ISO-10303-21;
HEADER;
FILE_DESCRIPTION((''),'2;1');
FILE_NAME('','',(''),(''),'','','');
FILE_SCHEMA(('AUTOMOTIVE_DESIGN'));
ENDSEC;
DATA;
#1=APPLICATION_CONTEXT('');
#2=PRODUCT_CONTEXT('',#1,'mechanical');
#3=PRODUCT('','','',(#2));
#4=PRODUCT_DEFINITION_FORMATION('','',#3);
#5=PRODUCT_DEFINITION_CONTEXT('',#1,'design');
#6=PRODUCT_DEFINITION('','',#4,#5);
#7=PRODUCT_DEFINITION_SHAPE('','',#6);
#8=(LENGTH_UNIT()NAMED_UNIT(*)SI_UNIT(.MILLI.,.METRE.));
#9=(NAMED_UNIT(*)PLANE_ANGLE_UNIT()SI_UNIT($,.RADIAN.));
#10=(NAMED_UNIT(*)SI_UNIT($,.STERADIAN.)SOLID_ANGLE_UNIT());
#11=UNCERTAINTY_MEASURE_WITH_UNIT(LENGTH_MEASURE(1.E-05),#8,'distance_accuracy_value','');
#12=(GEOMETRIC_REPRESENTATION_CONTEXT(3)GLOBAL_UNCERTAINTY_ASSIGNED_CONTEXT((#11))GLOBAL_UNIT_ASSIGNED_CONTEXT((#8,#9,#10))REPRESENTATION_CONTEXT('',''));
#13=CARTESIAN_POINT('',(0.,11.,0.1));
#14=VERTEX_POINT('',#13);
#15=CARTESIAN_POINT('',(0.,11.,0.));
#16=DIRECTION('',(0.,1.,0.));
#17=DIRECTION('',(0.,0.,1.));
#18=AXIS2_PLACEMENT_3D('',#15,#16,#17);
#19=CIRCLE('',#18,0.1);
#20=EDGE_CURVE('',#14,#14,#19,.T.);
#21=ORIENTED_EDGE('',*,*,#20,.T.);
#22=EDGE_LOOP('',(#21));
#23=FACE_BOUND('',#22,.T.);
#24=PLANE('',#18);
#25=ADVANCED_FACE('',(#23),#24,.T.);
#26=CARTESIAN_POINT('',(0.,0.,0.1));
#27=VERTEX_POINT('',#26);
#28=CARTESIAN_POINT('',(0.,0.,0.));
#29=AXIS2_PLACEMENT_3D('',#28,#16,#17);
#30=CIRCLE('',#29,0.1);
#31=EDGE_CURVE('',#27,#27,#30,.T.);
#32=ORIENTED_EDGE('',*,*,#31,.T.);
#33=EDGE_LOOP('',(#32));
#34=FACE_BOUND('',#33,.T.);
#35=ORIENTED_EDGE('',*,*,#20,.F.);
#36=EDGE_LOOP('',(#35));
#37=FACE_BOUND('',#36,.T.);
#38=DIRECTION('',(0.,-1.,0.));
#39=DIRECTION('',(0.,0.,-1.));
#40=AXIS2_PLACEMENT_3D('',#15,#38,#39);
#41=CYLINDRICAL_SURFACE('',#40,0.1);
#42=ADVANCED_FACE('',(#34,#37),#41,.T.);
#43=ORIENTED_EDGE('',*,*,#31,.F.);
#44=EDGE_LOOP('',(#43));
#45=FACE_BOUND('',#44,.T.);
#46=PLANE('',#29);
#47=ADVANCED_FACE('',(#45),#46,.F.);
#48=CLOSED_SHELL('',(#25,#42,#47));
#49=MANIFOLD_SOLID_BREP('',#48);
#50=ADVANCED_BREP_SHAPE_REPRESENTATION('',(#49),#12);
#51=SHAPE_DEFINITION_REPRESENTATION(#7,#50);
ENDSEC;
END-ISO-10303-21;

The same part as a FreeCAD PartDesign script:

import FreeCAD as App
import Part
import Sketcher

doc = App.newDocument("Part")
body = doc.addObject("PartDesign::Body", "Body")

sketch1 = body.newObject("Sketcher::SketchObject", "Sketch")
sketch1.AttachmentSupport = (doc.getObject("XZ_Plane"), [""])
sketch1.MapMode = "FlatFace"
sketch1.addGeometry(Part.Circle(App.Vector(0, 0, 0), App.Vector(0, 0, 1), 0.1), False)
sketch1.addConstraint([
    Sketcher.Constraint("Coincident", 0, 3, -1, 1),
    Sketcher.Constraint("Diameter", 0, 0.2),
])
pad1 = body.newObject("PartDesign::Pad", "Pad")
pad1.Profile = sketch1
pad1.Length = 11
pad1.Reversed = True

doc.recompute()
